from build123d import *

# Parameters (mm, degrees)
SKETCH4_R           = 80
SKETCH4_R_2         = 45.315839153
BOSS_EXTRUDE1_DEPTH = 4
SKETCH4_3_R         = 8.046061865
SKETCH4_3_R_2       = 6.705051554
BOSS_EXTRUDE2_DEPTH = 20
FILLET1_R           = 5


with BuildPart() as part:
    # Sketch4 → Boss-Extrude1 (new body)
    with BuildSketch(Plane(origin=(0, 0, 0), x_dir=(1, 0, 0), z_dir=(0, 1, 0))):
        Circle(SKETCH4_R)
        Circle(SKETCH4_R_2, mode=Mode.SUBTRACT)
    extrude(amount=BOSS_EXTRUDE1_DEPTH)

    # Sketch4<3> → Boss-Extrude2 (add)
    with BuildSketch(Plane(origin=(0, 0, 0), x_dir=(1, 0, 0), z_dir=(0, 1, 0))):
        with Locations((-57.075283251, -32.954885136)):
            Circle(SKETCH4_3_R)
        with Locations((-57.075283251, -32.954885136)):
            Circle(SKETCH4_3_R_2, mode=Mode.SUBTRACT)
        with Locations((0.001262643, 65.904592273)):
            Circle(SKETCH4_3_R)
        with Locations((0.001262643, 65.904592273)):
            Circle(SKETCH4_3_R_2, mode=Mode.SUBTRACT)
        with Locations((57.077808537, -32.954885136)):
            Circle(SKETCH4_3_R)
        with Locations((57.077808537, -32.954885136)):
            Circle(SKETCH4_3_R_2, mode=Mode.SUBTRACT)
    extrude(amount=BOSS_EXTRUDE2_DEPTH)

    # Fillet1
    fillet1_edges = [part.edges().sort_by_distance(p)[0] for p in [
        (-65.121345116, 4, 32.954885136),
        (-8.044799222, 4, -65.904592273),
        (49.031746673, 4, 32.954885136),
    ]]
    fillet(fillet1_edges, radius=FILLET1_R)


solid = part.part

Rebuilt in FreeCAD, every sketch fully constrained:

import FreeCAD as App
import Part
import Sketcher

V = App.Vector
Q = App.Units.Quantity


def edges_at(feature, points):
    """Names of the edges that pass closest to the given points."""
    edges = feature.Shape.Edges
    near = lambda p: min(range(len(edges)), key=lambda i: edges[i].distToShape(Part.Vertex(*p))[0])
    return sorted({f"Edge{near(p) + 1}" for p in points})

doc = App.newDocument("Part")
body = doc.addObject("PartDesign::Body", "Body")

# Sketch on XZ plane
sketch1 = body.newObject("Sketcher::SketchObject", "Sketch")
sketch1.AttachmentSupport = (doc.getObject("XZ_Plane"), [""])
sketch1.MapMode = "FlatFace"
sketch1.addGeometry([
    Part.Circle(V(0, 0, 0), V(0, 0, 1), 80),
    Part.Circle(V(0, 0, 0), V(0, 0, 1), 45),
], False)
sketch1.addConstraint([
    Sketcher.Constraint("Coincident", 0, 3, -1, 1),
    Sketcher.Constraint("Coincident", 1, 3, -1, 1),
    Sketcher.Constraint("Diameter", 0, Q("160 mm")),
    Sketcher.Constraint("Diameter", 1, Q("90.631678 mm")),
])
pad1 = body.newObject("PartDesign::Pad", "Pad")
pad1.Profile = sketch1
pad1.Length = 4
pad1.Reversed = True

# Sketch on XZ plane
sketch2 = body.newObject("Sketcher::SketchObject", "Sketch001")
sketch2.AttachmentSupport = (doc.getObject("XZ_Plane"), [""])
sketch2.MapMode = "FlatFace"
sketch2.addGeometry([
    Part.Circle(V(-57, 33, 0), V(0, 0, 1), 8),  # 0
    Part.Circle(V(-57, 33, 0), V(0, 0, 1), 7),  # 1
    Part.Circle(V(0, -66, 0), V(0, 0, 1), 8),  # 2
    Part.Circle(V(0, -66, 0), V(0, 0, 1), 7),  # 3
    Part.Circle(V(57, 33, 0), V(0, 0, 1), 8),  # 4
    Part.Circle(V(57, 33, 0), V(0, 0, 1), 7),  # 5
], False)
sketch2.addConstraint([
    Sketcher.Constraint("Coincident", 1, 3, 0, 3),
    Sketcher.Constraint("Coincident", 3, 3, 2, 3),
    Sketcher.Constraint("Coincident", 5, 3, 4, 3),
    Sketcher.Constraint("Equal", 0, 2),
    Sketcher.Constraint("Equal", 1, 3),
    Sketcher.Constraint("Equal", 2, 4),
    Sketcher.Constraint("Equal", 3, 5),
    Sketcher.Constraint("Horizontal", 1, 3, 4, 3),
    Sketcher.Constraint("Diameter", 0, Q("16.092124 mm")),
    Sketcher.Constraint("Diameter", 1, Q("13.410103 mm")),
    Sketcher.Constraint("DistanceX", -1, 1, 4, 3, Q("57.077809 mm")),
    Sketcher.Constraint("DistanceX", 0, 3, 4, 3, Q("114.153092 mm")),
    Sketcher.Constraint("DistanceY", -1, 1, 0, 3, Q("32.954885 mm")),
    Sketcher.Constraint("DistanceX", -1, 1, 2, 3, Q("0.001263 mm")),
    Sketcher.Constraint("DistanceY", 2, 3, -1, 1, Q("65.904592 mm")),
])
pad2 = body.newObject("PartDesign::Pad", "Pad001")
pad2.Profile = sketch2
pad2.Length = 20
pad2.Reversed = True
doc.recompute()

fillet = body.newObject("PartDesign::Fillet", "Fillet")
fillet.Base = (pad2, edges_at(pad2, [(-65.121, 4, 32.955), (-8.045, 4, -65.905), (49.032, 4, 32.955)]))
fillet.Radius = 5

doc.recompute()
